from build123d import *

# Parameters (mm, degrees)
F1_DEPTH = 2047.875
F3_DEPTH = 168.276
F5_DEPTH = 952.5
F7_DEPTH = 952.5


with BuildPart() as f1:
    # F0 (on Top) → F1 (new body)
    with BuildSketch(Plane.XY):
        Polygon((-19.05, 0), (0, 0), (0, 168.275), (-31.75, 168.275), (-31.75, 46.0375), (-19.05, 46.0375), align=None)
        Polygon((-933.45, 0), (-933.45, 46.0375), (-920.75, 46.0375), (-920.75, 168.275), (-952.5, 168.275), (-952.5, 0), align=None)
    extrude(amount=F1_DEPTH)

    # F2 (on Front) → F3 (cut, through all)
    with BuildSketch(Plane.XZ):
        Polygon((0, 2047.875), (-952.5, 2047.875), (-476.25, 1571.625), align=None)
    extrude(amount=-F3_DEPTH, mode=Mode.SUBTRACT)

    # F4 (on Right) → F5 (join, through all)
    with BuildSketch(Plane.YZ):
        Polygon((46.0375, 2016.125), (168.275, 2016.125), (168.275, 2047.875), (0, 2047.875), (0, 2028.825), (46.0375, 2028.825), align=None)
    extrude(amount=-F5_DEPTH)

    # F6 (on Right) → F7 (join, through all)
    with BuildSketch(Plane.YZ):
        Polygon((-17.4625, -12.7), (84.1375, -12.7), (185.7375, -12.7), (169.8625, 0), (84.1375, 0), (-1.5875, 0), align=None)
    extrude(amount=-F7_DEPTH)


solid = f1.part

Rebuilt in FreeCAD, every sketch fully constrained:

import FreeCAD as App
import Part
import Sketcher

V = App.Vector
Q = App.Units.Quantity


def add_polygon(sketch, points):
    """Adds a closed chain of lines whose ends are joined by coincident constraints."""
    first, n = sketch.GeometryCount, len(points)
    for a, b in zip(points, points[1:] + points[:1]):
        sketch.addGeometry(Part.LineSegment(App.Vector(*a, 0), App.Vector(*b, 0)), False)
    for i in range(n):
        sketch.addConstraint(Sketcher.Constraint("Coincident", first + i, 2, first + (i + 1) % n, 1))

doc = App.newDocument("Part")
body = doc.addObject("PartDesign::Body", "Body")
body.AllowCompound = True

# Sketch on XY plane
sketch1 = body.newObject("Sketcher::SketchObject", "Sketch")
sketch1.AttachmentSupport = (doc.getObject("XY_Plane"), [""])
sketch1.MapMode = "FlatFace"
add_polygon(sketch1, [(-19.05, 0), (0, 0), (0, 168.275), (-31.75, 168.275), (-31.75, 46.0375), (-19.05, 46.0375)])  # lines 0-5
add_polygon(sketch1, [(-933.45, 0), (-933.45, 46.0375), (-920.75, 46.0375), (-920.75, 168.275), (-952.5, 168.275), (-952.5, 0)])  # lines 6-11
sketch1.addConstraint([
    Sketcher.Constraint("Horizontal", 0),
    Sketcher.Constraint("Vertical", 1),
    Sketcher.Constraint("Horizontal", 2),
    Sketcher.Constraint("Vertical", 3),
    Sketcher.Constraint("Horizontal", 4),
    Sketcher.Constraint("Vertical", 5),
    Sketcher.Constraint("Vertical", 6),
    Sketcher.Constraint("Horizontal", 7),
    Sketcher.Constraint("Vertical", 8),
    Sketcher.Constraint("Horizontal", 9),
    Sketcher.Constraint("Vertical", 10),
    Sketcher.Constraint("Horizontal", 11),
    Sketcher.Constraint("Coincident", 0, 2, -1, 1),
    Sketcher.Constraint("PointOnObject", 10, 2, -1),
    Sketcher.Constraint("Horizontal", 4, 2, 6, 2),
    Sketcher.Constraint("Horizontal", 2, 2, 8, 2),
    Sketcher.Constraint("Equal", 4, 7),
    Sketcher.Constraint("Equal", 2, 9),
    Sketcher.Constraint("DistanceX", 4, 1, 4, 2, Q("0.5 in")),
    Sketcher.Constraint("DistanceX", 6, 2, 4, 2, Q("36 in")),
    Sketcher.Constraint("DistanceX", 0, 1, 0, 2, Q("0.75 in")),
    Sketcher.Constraint("DistanceY", 1, 1, 1, 2, Q("6.625 in")),
    Sketcher.Constraint("DistanceY", 3, 2, 3, 1, Q("4.8125 in")),
])
pad1 = body.newObject("PartDesign::Pad", "Pad")
pad1.Profile = sketch1
pad1.Length = Q("80.625 in")

# Sketch on XZ plane
sketch2 = body.newObject("Sketcher::SketchObject", "Sketch001")
sketch2.AttachmentSupport = (doc.getObject("XZ_Plane"), [""])
sketch2.MapMode = "FlatFace"
add_polygon(sketch2, [(0, 2047.875), (-952.5, 2047.875), (-476.25, 1571.625)])  # lines 0-2
sketch2.addConstraint([
    Sketcher.Constraint("Horizontal", 0),
    Sketcher.Constraint("PointOnObject", 2, 2, -2),
    Sketcher.Constraint("Perpendicular", 1, 2),
    Sketcher.Constraint("Equal", 1, 2),
    Sketcher.Constraint("DistanceX", 0, 2, 0, 1, Q("37.5 in")),
    Sketcher.Constraint("DistanceY", -1, 1, 0, 2, Q("80.625 in")),
])
pocket1 = body.newObject("PartDesign::Pocket", "Pocket")
pocket1.Profile = sketch2
pocket1.Type = "ThroughAll"

# Sketch on YZ plane
sketch3 = body.newObject("Sketcher::SketchObject", "Sketch002")
sketch3.AttachmentSupport = (doc.getObject("YZ_Plane"), [""])
sketch3.MapMode = "FlatFace"
add_polygon(sketch3, [(46.0375, 2016.125), (168.275, 2016.125), (168.275, 2047.875), (0, 2047.875), (0, 2028.825), (46.0375, 2028.825)])  # lines 0-5
sketch3.addConstraint([
    Sketcher.Constraint("Horizontal", 0),
    Sketcher.Constraint("Vertical", 1),
    Sketcher.Constraint("Horizontal", 2),
    Sketcher.Constraint("Vertical", 3),
    Sketcher.Constraint("Horizontal", 4),
    Sketcher.Constraint("Vertical", 5),
    Sketcher.Constraint("PointOnObject", 2, 2, -2),
    Sketcher.Constraint("DistanceY", 5, 2, 5, 1, Q("0.5 in")),
    Sketcher.Constraint("DistanceY", 1, 1, 1, 2, Q("1.25 in")),
    Sketcher.Constraint("DistanceX", 0, 1, 0, 2, Q("4.8125 in")),
    Sketcher.Constraint("DistanceX", 2, 2, 2, 1, Q("6.625 in")),
    Sketcher.Constraint("DistanceY", -1, 1, 0, 2, Q("79.375 in")),
])
pad2 = body.newObject("PartDesign::Pad", "Pad001")
pad2.Profile = sketch3
pad2.Type = "UpToLast"
pad2.Reversed = True

# Sketch on YZ plane
sketch4 = body.newObject("Sketcher::SketchObject", "Sketch003")
sketch4.AttachmentSupport = (doc.getObject("YZ_Plane"), [""])
sketch4.MapMode = "FlatFace"
add_polygon(sketch4, [(-17.4625, -12.7), (185.7375, -12.7), (169.8625, 0), (-1.5875, 0)])  # lines 0-3
sketch4.addConstraint([
    Sketcher.Constraint("Horizontal", 0),
    Sketcher.Constraint("Horizontal", 2),
    Sketcher.Constraint("PointOnObject", 1, 2, -1),
    Sketcher.Constraint("Equal", 1, 3),
    Sketcher.Constraint("DistanceX", 0, 1, 0, 2, Q("8 in")),
    Sketcher.Constraint("DistanceX", 2, 2, 2, 1, Q("6.75 in")),
    Sketcher.Constraint("DistanceY", 0, 2, -1, 1, Q("0.5 in")),
    Sketcher.Constraint("DistanceX", -1, 1, 0, 2, Q("7.3125 in")),
])
pad3 = body.newObject("PartDesign::Pad", "Pad002")
pad3.Profile = sketch4
pad3.Length = Q("37.5 in")
pad3.Reversed = True

doc.recompute()
